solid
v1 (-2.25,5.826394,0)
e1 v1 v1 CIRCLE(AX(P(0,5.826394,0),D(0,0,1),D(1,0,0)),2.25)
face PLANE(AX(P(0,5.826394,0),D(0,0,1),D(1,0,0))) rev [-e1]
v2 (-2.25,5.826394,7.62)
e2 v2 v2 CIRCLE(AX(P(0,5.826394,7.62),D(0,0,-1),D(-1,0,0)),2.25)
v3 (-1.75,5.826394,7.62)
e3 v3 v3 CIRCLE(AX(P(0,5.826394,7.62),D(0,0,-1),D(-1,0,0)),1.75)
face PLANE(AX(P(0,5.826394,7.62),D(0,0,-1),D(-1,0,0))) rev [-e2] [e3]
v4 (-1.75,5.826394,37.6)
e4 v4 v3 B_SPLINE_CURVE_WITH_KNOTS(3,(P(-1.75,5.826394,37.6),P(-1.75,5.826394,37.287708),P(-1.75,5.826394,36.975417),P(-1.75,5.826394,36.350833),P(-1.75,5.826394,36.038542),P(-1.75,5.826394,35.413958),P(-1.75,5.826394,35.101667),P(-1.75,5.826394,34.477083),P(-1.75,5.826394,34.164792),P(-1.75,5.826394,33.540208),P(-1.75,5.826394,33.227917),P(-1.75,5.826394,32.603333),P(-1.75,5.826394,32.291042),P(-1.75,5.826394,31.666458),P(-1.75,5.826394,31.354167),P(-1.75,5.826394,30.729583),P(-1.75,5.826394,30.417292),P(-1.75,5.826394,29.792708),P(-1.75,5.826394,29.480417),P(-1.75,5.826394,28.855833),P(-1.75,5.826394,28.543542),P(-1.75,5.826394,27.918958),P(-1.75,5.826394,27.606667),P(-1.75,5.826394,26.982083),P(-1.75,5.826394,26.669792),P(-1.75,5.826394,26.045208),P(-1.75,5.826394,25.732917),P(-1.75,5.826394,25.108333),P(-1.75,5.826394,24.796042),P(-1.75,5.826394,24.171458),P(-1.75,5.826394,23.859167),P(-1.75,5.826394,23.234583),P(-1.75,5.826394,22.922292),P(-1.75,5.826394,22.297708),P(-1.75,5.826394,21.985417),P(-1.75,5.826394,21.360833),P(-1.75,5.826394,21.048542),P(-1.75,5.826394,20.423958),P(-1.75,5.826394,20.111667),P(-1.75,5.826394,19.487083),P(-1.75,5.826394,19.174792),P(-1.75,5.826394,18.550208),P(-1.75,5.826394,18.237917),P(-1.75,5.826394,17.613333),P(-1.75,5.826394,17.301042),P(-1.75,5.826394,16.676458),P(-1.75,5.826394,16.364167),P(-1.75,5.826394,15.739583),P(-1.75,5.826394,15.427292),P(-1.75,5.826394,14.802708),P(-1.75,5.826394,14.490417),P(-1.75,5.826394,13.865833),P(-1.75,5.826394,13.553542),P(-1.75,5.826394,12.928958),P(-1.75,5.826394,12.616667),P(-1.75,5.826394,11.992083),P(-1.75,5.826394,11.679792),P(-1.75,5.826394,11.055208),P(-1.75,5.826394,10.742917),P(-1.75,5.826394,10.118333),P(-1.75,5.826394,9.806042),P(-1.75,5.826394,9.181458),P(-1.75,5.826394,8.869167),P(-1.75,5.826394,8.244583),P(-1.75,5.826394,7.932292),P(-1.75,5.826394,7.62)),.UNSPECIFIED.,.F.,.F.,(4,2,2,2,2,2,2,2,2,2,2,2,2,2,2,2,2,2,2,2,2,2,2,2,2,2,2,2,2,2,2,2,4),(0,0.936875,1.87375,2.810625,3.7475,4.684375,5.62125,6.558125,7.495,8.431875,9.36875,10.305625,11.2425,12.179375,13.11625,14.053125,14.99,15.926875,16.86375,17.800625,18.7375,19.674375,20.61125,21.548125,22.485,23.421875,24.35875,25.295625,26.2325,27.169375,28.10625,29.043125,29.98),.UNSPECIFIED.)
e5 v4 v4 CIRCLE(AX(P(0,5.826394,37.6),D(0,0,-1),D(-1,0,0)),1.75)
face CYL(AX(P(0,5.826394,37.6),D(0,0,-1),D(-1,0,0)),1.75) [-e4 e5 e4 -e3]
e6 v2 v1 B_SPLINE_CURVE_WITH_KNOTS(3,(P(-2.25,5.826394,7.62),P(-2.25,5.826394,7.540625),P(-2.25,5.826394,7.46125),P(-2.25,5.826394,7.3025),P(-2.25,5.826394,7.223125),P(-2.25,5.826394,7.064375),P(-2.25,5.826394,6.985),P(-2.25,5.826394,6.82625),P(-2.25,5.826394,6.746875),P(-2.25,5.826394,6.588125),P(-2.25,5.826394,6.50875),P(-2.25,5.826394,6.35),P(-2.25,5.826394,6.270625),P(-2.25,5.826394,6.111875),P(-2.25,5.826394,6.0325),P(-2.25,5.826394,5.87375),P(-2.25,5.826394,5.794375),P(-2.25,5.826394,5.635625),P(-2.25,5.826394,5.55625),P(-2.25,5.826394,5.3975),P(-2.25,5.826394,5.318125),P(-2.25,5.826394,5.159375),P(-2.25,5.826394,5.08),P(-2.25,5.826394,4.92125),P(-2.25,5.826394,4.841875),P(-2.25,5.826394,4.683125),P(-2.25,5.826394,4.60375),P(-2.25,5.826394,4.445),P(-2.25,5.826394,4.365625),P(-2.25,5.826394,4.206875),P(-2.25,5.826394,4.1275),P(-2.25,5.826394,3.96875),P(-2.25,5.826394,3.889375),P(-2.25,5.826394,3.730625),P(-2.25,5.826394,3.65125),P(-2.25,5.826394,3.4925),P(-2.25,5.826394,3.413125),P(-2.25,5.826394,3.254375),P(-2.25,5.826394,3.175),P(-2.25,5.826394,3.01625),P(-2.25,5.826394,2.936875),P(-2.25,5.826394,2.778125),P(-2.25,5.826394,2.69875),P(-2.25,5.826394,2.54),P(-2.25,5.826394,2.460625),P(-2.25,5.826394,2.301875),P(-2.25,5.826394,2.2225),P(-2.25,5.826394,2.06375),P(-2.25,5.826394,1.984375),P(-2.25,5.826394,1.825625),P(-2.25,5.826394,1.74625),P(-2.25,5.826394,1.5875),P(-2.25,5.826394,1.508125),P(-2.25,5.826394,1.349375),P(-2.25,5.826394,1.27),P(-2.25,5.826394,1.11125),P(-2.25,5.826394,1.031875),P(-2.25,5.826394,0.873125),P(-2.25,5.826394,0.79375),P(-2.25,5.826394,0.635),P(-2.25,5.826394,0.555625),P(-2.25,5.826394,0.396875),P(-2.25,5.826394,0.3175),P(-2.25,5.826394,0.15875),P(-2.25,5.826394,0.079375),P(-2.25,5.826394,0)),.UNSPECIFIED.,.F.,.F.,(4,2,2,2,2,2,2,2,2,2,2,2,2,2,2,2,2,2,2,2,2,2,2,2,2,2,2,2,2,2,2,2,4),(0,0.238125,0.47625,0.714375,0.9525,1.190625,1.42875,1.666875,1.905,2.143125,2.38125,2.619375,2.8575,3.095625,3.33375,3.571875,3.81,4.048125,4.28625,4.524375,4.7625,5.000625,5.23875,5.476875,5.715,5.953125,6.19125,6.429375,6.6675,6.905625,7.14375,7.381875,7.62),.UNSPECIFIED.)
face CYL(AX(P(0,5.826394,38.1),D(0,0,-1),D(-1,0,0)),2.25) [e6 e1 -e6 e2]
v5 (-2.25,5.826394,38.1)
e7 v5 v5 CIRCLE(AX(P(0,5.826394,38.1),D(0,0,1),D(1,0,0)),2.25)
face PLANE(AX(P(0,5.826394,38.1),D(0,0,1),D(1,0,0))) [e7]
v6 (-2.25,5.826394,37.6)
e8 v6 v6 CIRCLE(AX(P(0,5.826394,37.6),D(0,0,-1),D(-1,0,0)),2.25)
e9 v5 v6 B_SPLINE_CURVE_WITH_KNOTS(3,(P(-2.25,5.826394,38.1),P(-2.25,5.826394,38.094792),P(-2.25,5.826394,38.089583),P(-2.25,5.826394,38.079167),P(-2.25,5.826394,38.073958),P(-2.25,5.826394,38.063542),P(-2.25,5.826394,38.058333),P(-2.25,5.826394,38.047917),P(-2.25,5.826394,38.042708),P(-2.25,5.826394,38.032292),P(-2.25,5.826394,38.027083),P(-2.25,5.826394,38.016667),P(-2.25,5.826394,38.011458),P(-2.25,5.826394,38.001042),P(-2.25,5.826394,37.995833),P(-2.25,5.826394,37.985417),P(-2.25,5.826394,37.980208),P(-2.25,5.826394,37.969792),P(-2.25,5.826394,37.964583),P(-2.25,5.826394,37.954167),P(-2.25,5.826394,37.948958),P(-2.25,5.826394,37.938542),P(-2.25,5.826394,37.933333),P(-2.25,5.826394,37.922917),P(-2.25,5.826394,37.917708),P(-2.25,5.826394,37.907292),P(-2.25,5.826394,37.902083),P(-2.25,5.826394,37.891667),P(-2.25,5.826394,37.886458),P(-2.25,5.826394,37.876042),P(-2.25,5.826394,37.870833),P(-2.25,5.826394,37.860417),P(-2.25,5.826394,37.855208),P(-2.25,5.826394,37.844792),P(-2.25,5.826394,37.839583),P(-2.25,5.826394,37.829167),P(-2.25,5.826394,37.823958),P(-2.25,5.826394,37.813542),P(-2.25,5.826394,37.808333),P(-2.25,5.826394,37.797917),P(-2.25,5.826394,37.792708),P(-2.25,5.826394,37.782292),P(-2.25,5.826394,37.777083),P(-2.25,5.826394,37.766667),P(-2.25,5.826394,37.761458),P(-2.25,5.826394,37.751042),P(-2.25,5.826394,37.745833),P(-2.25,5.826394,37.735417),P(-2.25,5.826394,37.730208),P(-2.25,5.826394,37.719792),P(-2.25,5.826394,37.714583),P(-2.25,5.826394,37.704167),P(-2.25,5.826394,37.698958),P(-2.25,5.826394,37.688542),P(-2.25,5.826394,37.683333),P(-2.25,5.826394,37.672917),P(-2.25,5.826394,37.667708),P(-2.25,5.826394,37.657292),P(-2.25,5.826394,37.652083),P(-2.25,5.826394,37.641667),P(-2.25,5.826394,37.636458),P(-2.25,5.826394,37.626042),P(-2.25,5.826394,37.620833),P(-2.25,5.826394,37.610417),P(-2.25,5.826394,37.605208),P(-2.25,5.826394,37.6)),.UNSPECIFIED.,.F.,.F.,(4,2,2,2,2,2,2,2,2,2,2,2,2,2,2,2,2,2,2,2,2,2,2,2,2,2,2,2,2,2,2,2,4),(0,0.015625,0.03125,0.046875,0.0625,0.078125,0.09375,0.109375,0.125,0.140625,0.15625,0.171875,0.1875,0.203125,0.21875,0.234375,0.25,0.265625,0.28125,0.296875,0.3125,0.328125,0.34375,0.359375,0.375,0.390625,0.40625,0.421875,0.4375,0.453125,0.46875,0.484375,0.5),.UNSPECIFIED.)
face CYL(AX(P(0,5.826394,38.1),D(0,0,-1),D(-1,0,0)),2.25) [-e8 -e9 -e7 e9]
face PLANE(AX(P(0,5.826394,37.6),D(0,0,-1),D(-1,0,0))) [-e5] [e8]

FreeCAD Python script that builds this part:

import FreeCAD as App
import Part
import Sketcher

V = App.Vector

doc = App.newDocument("Part")
body = doc.addObject("PartDesign::Body", "Body")

sketch1 = body.newObject("Sketcher::SketchObject", "Sketch")
sketch1.AttachmentSupport = (doc.getObject("XY_Plane"), [""])
sketch1.MapMode = "FlatFace"
sketch1.addGeometry(Part.Circle(V(0, 5.8, 0), V(0, 0, 1), 2.2), False)
sketch1.addConstraint(Sketcher.Constraint("PointOnObject", 0, 3, -2))
sketch1.addConstraint(Sketcher.Constraint("Diameter", 0, 4.5))
sketch1.addConstraint(Sketcher.Constraint("DistanceY", -1, 1, 0, 3, 5.826394))
pad1 = body.newObject("PartDesign::Pad", "Pad")
pad1.Profile = sketch1
pad1.Length = 38.1

sketch2 = body.newObject("Sketcher::SketchObject", "Sketch001")
sketch2.AttachmentSupport = (doc.getObject("XY_Plane"), [""])
sketch2.MapMode = "FlatFace"
sketch2.AttachmentOffset = App.Placement(V(0, 0, 7.62), App.Rotation())
sketch2.addGeometry(Part.LineSegment(V(7.1, 12.9, 0), V(7.1, -1.3, 0)), False)
sketch2.addGeometry(Part.LineSegment(V(7.1, -1.3, 0), V(-7.1, -1.3, 0)), False)
sketch2.addGeometry(Part.LineSegment(V(-7.1, -1.3, 0), V(-7.1, 12.9, 0)), False)
sketch2.addGeometry(Part.LineSegment(V(-7.1, 12.9, 0), V(7.1, 12.9, 0)), False)
sketch2.addGeometry(Part.Circle(V(0, 5.8, 0), V(0, 0, 1), 1.8), False)
sketch2.addConstraint(Sketcher.Constraint("Coincident", 0, 2, 1, 1))
sketch2.addConstraint(Sketcher.Constraint("Coincident", 1, 2, 2, 1))
sketch2.addConstraint(Sketcher.Constraint("Coincident", 2, 2, 3, 1))
sketch2.addConstraint(Sketcher.Constraint("Coincident", 3, 2, 0, 1))
sketch2.addConstraint(Sketcher.Constraint("Vertical", 0))
sketch2.addConstraint(Sketcher.Constraint("Horizontal", 1))
sketch2.addConstraint(Sketcher.Constraint("Vertical", 2))
sketch2.addConstraint(Sketcher.Constraint("Horizontal", 3))
sketch2.addConstraint(Sketcher.Constraint("PointOnObject", 4, 3, -2))
sketch2.addConstraint(Sketcher.Constraint("Equal", 3, 0))
sketch2.addConstraint(Sketcher.Constraint("Diameter", 4, 3.5))
sketch2.addConstraint(Sketcher.Constraint("DistanceX", 1, 2, 1, 1, 14.226))
sketch2.addConstraint(Sketcher.Constraint("DistanceX", -1, 1, 0, 2, 7.113))
sketch2.addConstraint(Sketcher.Constraint("DistanceY", 0, 2, -1, 1, 1.287))
sketch2.addConstraint(Sketcher.Constraint("DistanceY", -1, 1, 4, 3, 5.826394))
pocket1 = body.newObject("PartDesign::Pocket", "Pocket")
pocket1.Profile = sketch2
pocket1.Length = 29.98
pocket1.Reversed = True

doc.recompute()
